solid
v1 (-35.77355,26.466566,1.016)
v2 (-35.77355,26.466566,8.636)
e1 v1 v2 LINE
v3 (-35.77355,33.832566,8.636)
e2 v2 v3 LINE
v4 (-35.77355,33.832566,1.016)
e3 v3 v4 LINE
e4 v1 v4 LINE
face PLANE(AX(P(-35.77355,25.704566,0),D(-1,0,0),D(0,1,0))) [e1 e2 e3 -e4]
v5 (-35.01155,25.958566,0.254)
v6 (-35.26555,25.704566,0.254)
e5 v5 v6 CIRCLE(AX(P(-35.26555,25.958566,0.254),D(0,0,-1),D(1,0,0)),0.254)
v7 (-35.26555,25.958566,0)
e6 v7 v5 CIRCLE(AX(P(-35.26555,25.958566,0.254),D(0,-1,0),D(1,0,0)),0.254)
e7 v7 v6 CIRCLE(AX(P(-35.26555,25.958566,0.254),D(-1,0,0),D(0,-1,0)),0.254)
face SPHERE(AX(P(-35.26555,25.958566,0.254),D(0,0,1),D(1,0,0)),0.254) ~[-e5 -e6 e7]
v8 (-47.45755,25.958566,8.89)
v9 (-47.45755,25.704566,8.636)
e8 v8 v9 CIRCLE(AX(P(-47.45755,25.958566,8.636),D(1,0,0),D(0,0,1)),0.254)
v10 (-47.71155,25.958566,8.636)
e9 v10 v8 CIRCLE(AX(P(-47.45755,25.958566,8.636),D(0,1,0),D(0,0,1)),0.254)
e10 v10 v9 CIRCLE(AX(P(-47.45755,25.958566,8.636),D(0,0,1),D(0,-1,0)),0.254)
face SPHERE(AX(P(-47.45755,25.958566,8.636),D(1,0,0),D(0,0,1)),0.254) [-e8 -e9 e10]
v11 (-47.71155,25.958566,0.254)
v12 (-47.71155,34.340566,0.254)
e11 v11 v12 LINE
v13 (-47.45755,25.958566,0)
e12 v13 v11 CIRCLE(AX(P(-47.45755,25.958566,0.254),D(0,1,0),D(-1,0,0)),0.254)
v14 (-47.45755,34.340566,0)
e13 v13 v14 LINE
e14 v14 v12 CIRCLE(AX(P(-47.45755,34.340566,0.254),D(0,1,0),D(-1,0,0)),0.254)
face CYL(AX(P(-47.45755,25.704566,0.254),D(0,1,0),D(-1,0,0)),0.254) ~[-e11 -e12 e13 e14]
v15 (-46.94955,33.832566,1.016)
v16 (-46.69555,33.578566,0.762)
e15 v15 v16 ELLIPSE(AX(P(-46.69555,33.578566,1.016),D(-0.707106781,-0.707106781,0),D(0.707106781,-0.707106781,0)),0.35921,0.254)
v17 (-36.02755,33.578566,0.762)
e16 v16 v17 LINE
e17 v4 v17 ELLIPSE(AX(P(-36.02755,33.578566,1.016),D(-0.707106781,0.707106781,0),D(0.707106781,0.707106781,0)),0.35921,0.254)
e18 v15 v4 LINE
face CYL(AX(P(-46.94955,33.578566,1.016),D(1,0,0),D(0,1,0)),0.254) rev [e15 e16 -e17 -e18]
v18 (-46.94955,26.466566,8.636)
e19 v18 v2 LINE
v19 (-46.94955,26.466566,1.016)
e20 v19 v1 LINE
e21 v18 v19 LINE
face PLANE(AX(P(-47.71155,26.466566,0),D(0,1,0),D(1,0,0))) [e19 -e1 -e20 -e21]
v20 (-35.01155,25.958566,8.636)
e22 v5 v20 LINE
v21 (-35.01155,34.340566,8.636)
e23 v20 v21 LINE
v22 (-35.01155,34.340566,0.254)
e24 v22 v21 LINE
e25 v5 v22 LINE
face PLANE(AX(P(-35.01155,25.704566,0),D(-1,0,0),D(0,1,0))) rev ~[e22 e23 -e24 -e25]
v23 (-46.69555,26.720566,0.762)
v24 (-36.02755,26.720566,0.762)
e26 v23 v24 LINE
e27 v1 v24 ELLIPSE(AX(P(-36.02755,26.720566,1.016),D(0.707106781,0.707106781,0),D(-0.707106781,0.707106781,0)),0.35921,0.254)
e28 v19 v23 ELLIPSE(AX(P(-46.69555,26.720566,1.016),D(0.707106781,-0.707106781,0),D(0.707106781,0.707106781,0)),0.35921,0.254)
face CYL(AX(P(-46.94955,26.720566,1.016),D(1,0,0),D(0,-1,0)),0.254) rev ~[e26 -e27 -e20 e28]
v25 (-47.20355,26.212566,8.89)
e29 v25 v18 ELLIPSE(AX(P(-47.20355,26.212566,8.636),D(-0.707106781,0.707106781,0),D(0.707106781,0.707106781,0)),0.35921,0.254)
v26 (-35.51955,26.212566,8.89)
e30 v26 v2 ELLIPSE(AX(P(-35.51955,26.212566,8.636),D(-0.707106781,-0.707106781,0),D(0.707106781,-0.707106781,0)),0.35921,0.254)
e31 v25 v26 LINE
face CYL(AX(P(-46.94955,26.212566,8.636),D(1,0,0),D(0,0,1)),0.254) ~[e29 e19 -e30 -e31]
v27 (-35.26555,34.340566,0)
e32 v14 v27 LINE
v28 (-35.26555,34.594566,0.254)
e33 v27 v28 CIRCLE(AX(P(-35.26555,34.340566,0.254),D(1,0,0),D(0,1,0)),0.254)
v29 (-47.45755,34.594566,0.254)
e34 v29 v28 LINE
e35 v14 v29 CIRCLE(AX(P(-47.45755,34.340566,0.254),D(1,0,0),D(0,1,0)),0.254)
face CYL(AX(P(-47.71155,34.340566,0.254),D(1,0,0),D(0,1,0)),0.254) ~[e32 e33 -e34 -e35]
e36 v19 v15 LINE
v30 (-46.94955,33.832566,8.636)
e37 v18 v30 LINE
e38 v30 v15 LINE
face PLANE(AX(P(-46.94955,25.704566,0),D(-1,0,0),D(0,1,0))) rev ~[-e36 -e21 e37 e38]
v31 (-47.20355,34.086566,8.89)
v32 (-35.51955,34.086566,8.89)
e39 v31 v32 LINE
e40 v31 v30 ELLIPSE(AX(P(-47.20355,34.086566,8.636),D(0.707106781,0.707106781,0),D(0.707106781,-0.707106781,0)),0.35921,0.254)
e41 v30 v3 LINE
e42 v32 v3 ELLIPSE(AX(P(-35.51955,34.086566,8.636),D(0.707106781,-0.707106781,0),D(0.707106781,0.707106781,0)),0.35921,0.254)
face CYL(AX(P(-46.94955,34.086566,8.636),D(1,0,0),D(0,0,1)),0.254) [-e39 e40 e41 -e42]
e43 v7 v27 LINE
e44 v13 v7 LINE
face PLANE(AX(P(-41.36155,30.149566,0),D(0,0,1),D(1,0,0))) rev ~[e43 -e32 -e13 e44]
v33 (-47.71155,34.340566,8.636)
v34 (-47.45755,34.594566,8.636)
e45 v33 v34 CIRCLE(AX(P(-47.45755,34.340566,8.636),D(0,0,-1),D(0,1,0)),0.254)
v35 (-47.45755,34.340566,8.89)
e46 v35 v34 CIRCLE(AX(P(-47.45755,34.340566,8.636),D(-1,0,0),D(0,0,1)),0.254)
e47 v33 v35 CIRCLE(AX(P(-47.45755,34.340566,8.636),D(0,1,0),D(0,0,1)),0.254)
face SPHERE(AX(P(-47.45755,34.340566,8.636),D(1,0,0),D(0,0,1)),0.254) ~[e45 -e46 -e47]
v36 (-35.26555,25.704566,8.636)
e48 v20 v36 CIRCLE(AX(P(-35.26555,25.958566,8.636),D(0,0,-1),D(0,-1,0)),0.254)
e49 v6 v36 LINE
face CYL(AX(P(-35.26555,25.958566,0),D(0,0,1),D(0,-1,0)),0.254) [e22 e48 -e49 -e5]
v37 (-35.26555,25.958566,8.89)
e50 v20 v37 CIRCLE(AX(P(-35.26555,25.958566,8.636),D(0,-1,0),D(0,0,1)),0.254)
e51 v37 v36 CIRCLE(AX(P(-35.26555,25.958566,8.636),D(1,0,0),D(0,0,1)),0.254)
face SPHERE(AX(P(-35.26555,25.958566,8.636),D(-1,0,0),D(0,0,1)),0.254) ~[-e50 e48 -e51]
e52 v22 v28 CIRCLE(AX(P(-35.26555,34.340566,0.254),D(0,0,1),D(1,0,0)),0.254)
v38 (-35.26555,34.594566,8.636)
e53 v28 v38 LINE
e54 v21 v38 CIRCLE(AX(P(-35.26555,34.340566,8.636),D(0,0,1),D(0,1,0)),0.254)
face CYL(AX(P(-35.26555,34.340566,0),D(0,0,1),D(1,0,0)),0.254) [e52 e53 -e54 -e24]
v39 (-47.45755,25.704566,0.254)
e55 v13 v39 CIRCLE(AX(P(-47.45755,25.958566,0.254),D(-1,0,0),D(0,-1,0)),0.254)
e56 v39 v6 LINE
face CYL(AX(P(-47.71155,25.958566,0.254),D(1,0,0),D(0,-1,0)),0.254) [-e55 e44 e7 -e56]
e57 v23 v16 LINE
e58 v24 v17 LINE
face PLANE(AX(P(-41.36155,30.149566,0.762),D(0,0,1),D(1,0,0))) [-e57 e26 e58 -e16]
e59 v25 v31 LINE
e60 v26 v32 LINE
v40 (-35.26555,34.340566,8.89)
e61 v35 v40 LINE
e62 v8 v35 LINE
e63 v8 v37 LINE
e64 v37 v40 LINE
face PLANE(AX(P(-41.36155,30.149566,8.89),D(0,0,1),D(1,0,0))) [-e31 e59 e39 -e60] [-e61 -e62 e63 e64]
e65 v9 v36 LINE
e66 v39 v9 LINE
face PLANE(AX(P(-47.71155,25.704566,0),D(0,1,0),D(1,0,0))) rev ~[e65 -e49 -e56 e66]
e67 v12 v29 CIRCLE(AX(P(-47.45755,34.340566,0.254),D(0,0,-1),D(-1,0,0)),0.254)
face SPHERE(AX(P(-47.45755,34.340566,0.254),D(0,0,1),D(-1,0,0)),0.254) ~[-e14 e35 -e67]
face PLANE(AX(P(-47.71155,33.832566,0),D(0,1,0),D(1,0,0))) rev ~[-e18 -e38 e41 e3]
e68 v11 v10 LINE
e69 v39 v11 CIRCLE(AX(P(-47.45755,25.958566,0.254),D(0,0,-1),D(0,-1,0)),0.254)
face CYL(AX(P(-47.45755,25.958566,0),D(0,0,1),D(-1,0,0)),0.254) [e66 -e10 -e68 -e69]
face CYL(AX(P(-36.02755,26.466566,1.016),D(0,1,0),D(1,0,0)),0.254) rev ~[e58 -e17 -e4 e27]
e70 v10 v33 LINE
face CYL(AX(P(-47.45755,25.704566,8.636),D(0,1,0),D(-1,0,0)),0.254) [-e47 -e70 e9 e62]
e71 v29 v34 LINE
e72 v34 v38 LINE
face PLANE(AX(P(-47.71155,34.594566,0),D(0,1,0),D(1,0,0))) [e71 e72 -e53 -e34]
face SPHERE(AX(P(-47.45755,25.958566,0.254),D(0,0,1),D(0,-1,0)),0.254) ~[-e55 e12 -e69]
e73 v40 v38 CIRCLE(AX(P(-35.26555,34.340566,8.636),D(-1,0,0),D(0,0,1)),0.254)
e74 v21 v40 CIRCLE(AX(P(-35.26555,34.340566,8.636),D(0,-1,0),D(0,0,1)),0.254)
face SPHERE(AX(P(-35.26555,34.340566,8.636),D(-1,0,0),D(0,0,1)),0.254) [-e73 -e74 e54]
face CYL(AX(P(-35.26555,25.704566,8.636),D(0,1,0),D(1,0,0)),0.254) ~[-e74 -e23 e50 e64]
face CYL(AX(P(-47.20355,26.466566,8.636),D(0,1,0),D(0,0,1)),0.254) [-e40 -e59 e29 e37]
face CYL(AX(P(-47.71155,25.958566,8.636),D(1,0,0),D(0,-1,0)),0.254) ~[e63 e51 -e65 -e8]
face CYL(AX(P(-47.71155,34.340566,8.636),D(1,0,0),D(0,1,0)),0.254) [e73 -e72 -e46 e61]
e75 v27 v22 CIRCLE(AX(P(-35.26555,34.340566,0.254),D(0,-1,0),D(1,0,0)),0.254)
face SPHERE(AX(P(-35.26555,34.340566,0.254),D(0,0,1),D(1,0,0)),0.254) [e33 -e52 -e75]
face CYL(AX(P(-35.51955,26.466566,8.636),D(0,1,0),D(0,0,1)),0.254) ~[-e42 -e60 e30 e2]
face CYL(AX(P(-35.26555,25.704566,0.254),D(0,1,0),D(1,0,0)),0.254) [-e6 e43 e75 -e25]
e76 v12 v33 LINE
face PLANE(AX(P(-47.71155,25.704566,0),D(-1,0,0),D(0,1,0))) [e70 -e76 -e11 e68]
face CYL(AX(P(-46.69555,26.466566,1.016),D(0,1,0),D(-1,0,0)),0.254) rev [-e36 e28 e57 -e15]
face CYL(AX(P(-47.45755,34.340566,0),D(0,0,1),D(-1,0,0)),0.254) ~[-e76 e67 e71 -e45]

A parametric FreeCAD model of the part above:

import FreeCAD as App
import Part
import Sketcher
from FreeCAD import Vector
Q = App.Units.Quantity


def edges_at(feature, points):
    """Names of the edges that pass closest to the given points."""
    edges = feature.Shape.Edges
    near = lambda p: min(range(len(edges)), key=lambda i: edges[i].distToShape(Part.Vertex(*p))[0])
    return sorted({f"Edge{near(p) + 1}" for p in points})


def faces_at(feature, points):
    """Names of the faces that lie closest to the given points."""
    faces = feature.Shape.Faces
    near = lambda p: min(range(len(faces)), key=lambda i: faces[i].distToShape(Part.Vertex(*p))[0])
    return sorted({f"Face{near(p) + 1}" for p in points})

doc = App.newDocument("Part")
body = doc.addObject("PartDesign::Body", "Body")

sketch1 = doc.addObject("Sketcher::SketchObject", "Sketch")
body.addObject(sketch1)
sketch1.AttachmentSupport = (doc.XY_Plane, [""])
sketch1.MapMode = "FlatFace"
sketch1.addGeometry([
    Part.LineSegment(Vector(-47.71155, 34.594566, 0), Vector(-47.71155, 25.704566, 0)),
    Part.LineSegment(Vector(-47.71155, 25.704566, 0), Vector(-35.01155, 25.704566, 0)),
    Part.LineSegment(Vector(-35.01155, 25.704566, 0), Vector(-35.01155, 34.594566, 0)),
    Part.LineSegment(Vector(-35.01155, 34.594566, 0), Vector(-47.71155, 34.594566, 0)),
], False)
sketch1.addConstraint([
    Sketcher.Constraint("Coincident", 0, 2, 1, 1),
    Sketcher.Constraint("Coincident", 1, 2, 2, 1),
    Sketcher.Constraint("Coincident", 2, 2, 3, 1),
    Sketcher.Constraint("Coincident", 3, 2, 0, 1),
    Sketcher.Constraint("Vertical", 0),
    Sketcher.Constraint("Horizontal", 1),
    Sketcher.Constraint("Vertical", 2),
    Sketcher.Constraint("Horizontal", 3),
    Sketcher.Constraint("DistanceX", 1, 1, 1, 2, Q("0.5 in")),
    Sketcher.Constraint("DistanceY", 0, 2, 0, 1, Q("0.35 in")),
    Sketcher.Constraint("DistanceX", 0, 2, -1, 1, Q("47.71155 mm")),
    Sketcher.Constraint("DistanceY", -1, 1, 0, 2, Q("25.704566 mm")),
])
pad1 = doc.addObject("PartDesign::Pad", "Pad")
body.addObject(pad1)
pad1.Profile = sketch1
pad1.Length = Q("0.35 in")
doc.recompute()

thickness = doc.addObject("PartDesign::Thickness", "Thickness")
body.addObject(thickness)
thickness.Base = (pad1, faces_at(pad1, [(-41.362, 30.15, 8.89)]))
thickness.Value = Q("0.03 in")
thickness.Reversed = True
thickness.Join = "Arc"
doc.recompute()

fillet = doc.addObject("PartDesign::Fillet", "Fillet")
body.addObject(fillet)
fillet.Base = (thickness, edges_at(thickness, [
    (-41.362, 33.833, 8.89),
    (-41.362, 25.705, 8.89),
    (-41.362, 26.467, 8.89),
    (-41.362, 34.595, 8.89),
    (-46.95, 30.15, 8.89),
    (-47.712, 30.15, 8.89),
    (-35.774, 30.15, 8.89),
    (-35.012, 30.15, 8.89),
    (-35.012, 25.705, 4.445),
    (-47.712, 25.705, 4.445),
    (-47.712, 34.595, 4.445),
    (-35.012, 34.595, 4.445),
    (-35.012, 30.15, 0),
    (-41.362, 25.705, 0),
    (-47.712, 30.15, 0),
    (-41.362, 34.595, 0),
]))
fillet.Radius = Q("0.01 in")
doc.recompute()

fillet2 = doc.addObject("PartDesign::Fillet", "Fillet001")
body.addObject(fillet2)
fillet2.Base = (fillet, edges_at(fillet, [
    (-41.362, 33.833, 0.762),
    (-35.774, 30.15, 0.762),
    (-41.362, 26.467, 0.762),
    (-46.95, 30.15, 0.762),
]))
fillet2.Radius = Q("0.01 in")

doc.recompute()
